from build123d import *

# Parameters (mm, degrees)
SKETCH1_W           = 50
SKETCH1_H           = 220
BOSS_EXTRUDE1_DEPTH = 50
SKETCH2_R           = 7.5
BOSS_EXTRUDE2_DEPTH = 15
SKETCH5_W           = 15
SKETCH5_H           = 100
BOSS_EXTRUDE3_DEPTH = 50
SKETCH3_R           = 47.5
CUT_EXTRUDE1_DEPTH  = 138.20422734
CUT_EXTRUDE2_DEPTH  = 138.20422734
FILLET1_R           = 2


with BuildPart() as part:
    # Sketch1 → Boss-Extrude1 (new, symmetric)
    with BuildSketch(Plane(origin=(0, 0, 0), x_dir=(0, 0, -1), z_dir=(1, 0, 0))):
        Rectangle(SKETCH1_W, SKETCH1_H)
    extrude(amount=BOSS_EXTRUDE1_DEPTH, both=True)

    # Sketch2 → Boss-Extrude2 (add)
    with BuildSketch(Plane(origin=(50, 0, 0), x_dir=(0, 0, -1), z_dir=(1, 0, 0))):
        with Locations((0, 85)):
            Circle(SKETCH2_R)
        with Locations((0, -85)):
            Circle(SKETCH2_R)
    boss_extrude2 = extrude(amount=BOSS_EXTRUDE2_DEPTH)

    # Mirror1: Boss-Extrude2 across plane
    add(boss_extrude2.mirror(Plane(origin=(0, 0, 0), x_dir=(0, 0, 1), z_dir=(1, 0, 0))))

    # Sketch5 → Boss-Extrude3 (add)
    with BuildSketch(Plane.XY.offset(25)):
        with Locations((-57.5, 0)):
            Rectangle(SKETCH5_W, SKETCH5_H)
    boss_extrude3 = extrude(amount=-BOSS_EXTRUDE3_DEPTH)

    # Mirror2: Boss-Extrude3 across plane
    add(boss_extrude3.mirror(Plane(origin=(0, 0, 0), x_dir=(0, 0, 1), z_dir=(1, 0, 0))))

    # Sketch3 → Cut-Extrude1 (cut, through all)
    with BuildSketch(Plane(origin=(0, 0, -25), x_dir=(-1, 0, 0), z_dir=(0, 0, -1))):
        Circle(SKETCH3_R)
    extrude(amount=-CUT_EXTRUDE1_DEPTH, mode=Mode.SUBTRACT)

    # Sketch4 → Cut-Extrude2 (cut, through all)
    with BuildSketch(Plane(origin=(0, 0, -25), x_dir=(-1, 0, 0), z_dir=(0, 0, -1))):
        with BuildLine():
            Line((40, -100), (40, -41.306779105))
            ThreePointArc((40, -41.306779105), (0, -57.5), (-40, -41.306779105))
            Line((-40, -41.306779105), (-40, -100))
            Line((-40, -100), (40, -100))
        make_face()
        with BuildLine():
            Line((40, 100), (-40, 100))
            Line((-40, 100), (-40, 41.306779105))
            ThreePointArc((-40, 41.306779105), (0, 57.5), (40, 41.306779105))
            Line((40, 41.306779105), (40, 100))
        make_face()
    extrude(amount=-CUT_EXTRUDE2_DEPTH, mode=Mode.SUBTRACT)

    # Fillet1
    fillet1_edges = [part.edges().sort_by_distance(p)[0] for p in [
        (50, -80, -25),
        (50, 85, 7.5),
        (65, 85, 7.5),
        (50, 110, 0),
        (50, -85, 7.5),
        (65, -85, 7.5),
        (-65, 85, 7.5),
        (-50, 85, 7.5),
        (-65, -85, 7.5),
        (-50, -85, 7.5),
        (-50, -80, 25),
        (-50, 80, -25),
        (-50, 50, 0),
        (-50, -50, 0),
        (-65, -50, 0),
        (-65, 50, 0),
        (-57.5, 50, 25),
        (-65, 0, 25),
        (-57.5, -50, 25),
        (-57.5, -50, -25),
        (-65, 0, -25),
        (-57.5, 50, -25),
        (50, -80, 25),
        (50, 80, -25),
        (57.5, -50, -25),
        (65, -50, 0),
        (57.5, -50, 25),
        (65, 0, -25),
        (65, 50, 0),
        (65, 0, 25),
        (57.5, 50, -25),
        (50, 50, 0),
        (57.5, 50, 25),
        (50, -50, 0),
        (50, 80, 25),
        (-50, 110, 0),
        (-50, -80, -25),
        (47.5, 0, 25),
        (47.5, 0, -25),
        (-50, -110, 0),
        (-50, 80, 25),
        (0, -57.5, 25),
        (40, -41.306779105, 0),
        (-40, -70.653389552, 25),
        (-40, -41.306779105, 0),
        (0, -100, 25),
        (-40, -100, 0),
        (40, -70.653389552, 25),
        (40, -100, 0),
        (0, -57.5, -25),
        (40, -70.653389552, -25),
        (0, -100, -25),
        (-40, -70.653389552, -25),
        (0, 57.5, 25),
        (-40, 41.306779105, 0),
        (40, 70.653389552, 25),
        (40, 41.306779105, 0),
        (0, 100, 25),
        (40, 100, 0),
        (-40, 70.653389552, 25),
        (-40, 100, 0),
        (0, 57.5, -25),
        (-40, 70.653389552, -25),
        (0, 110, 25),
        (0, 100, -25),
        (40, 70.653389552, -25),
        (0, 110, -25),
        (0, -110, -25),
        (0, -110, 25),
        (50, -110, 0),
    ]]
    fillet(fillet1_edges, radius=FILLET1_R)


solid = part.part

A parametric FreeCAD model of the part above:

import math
import FreeCAD as App
import Part
import Sketcher

V = App.Vector
Q = App.Units.Quantity


def add_polygon(sketch, points):
    """Adds a closed chain of lines whose ends are joined by coincident constraints."""
    first, n = sketch.GeometryCount, len(points)
    for a, b in zip(points, points[1:] + points[:1]):
        sketch.addGeometry(Part.LineSegment(App.Vector(*a, 0), App.Vector(*b, 0)), False)
    for i in range(n):
        sketch.addConstraint(Sketcher.Constraint("Coincident", first + i, 2, first + (i + 1) % n, 1))

doc = App.newDocument("Part")
body = doc.addObject("PartDesign::Body", "Body")

# Sketch on YZ plane
sketch1 = body.newObject("Sketcher::SketchObject", "Sketch")
sketch1.AttachmentSupport = (doc.getObject("YZ_Plane"), [""])
sketch1.MapMode = "FlatFace"
add_polygon(sketch1, [(110, 25), (-110, 25), (-110, -25), (110, -25)])  # lines 0-3
sketch1.addConstraint([
    Sketcher.Constraint("Horizontal", 0),
    Sketcher.Constraint("Vertical", 1),
    Sketcher.Constraint("Horizontal", 2),
    Sketcher.Constraint("Vertical", 3),
    Sketcher.Constraint("Symmetric", 0, 2, 2, 2, -1, 1),
    Sketcher.Constraint("DistanceX", 0, 2, 0, 1, Q("220 mm")),
    Sketcher.Constraint("DistanceY", 1, 2, 1, 1, Q("50 mm")),
])
pad1 = body.newObject("PartDesign::Pad", "Pad")
pad1.Profile = sketch1
pad1.Length = 100
pad1.Midplane = True

# Sketch on YZ plane
sketch2 = body.newObject("Sketcher::SketchObject", "Sketch001")
sketch2.AttachmentSupport = (doc.getObject("YZ_Plane"), [""])
sketch2.MapMode = "FlatFace"
sketch2.AttachmentOffset = App.Placement(V(0, 0, 50), App.Rotation())
sketch2.addGeometry([
    Part.Circle(V(85, 0, 0), V(0, 0, 1), 7.5),
    Part.Circle(V(-85, 0, 0), V(0, 0, 1), 7.5),
], False)
sketch2.addConstraint([
    Sketcher.Constraint("Equal", 0, 1),
    Sketcher.Constraint("Symmetric", 0, 3, 1, 3, -1, 1),
    Sketcher.Constraint("PointOnObject", 0, 3, -1),
    Sketcher.Constraint("Diameter", 0, Q("15 mm")),
    Sketcher.Constraint("DistanceX", -1, 1, 0, 3, Q("85 mm")),
])
pad2 = body.newObject("PartDesign::Pad", "Pad001")
pad2.Profile = sketch2
pad2.Length = 15
doc.recompute()

mirrored = body.newObject("PartDesign::Mirrored", "Mirrored")
mirrored.Originals = [pad2]
mirrored.MirrorPlane = (doc.getObject("YZ_Plane"), [""])
body.Tip = mirrored

# Sketch on XY plane
sketch3 = body.newObject("Sketcher::SketchObject", "Sketch002")
sketch3.AttachmentSupport = (doc.getObject("XY_Plane"), [""])
sketch3.MapMode = "FlatFace"
sketch3.AttachmentOffset = App.Placement(V(0, 0, 25), App.Rotation())
add_polygon(sketch3, [(-65, 50), (-65, -50), (-50, -50), (-50, 50)])  # lines 0-3
sketch3.addConstraint([
    Sketcher.Constraint("Vertical", 0),
    Sketcher.Constraint("Horizontal", 1),
    Sketcher.Constraint("Vertical", 2),
    Sketcher.Constraint("Horizontal", 3),
    Sketcher.Constraint("DistanceX", 1, 1, 1, 2, Q("15 mm")),
    Sketcher.Constraint("DistanceY", 0, 2, 0, 1, Q("100 mm")),
    Sketcher.Constraint("DistanceX", 0, 2, -1, 1, Q("65 mm")),
    Sketcher.Constraint("DistanceY", 0, 2, -1, 1, Q("50 mm")),
])
pad3 = body.newObject("PartDesign::Pad", "Pad002")
pad3.Profile = sketch3
pad3.Length = 50
pad3.Reversed = True
doc.recompute()

mirrored2 = body.newObject("PartDesign::Mirrored", "Mirrored001")
mirrored2.Originals = [pad3]
mirrored2.MirrorPlane = (doc.getObject("YZ_Plane"), [""])
body.Tip = mirrored2

# Sketch on XY plane
sketch4 = body.newObject("Sketcher::SketchObject", "Sketch003")
sketch4.AttachmentSupport = (doc.getObject("XY_Plane"), [""])
sketch4.MapMode = "FlatFace"
sketch4.AttachmentOffset = App.Placement(V(0, 0, -25), App.Rotation())
sketch4.addGeometry(Part.Circle(V(0, 0, 0), V(0, 0, 1), 47.5), False)
sketch4.addConstraint([
    Sketcher.Constraint("Coincident", 0, 3, -1, 1),
    Sketcher.Constraint("Diameter", 0, Q("95 mm")),
])
pocket1 = body.newObject("PartDesign::Pocket", "Pocket")
pocket1.Profile = sketch4
pocket1.Type = "ThroughAll"
pocket1.Reversed = True

# Sketch on XY plane
sketch5 = body.newObject("Sketcher::SketchObject", "Sketch004")
sketch5.AttachmentSupport = (doc.getObject("XY_Plane"), [""])
sketch5.MapMode = "FlatFace"
sketch5.AttachmentOffset = App.Placement(V(0, 0, -25), App.Rotation())
sketch5.addGeometry([
    Part.LineSegment(V(-40, -100, 0), V(-40, -41.306779, 0)),  # 0
    Part.ArcOfCircle(Part.Circle(V(0, 0, 0), V(0, 0, 1), 57.5), math.radians(-134.07921), math.radians(-45.92079)),  # 1
    Part.LineSegment(V(40, -41.306779, 0), V(40, -100, 0)),  # 2
    Part.LineSegment(V(40, -100, 0), V(-40, -100, 0)),  # 3
    Part.LineSegment(V(-40, 100, 0), V(40, 100, 0)),  # 4
    Part.LineSegment(V(40, 100, 0), V(40, 41.306779, 0)),  # 5
    Part.ArcOfCircle(Part.Circle(V(0, 0, 0), V(0, 0, 1), 57.5), math.radians(45.92079), math.radians(134.07921)),  # 6
    Part.LineSegment(V(-40, 41.306779, 0), V(-40, 100, 0)),  # 7
], False)
sketch5.addConstraint([
    Sketcher.Constraint("Coincident", 0, 2, 1, 1),
    Sketcher.Constraint("Coincident", 1, 2, 2, 1),
    Sketcher.Constraint("Coincident", 2, 2, 3, 1),
    Sketcher.Constraint("Coincident", 3, 2, 0, 1),
    Sketcher.Constraint("Coincident", 4, 2, 5, 1),
    Sketcher.Constraint("Coincident", 5, 2, 6, 1),
    Sketcher.Constraint("Coincident", 6, 2, 7, 1),
    Sketcher.Constraint("Coincident", 7, 2, 4, 1),
    Sketcher.Constraint("Vertical", 0),
    Sketcher.Constraint("Vertical", 2),
    Sketcher.Constraint("Horizontal", 3),
    Sketcher.Constraint("Horizontal", 4),
    Sketcher.Constraint("Vertical", 5),
    Sketcher.Constraint("Vertical", 7),
    Sketcher.Constraint("Coincident", 1, 3, -1, 1),
    Sketcher.Constraint("Coincident", 6, 3, -1, 1),
    Sketcher.Constraint("Equal", 1, 6),
    Sketcher.Constraint("Symmetric", 3, 2, 4, 2, -1, 1),
    Sketcher.Constraint("Horizontal", 0, 2, 1, 2),
    Sketcher.Constraint("Horizontal", 5, 2, 6, 2),
    Sketcher.Constraint("Radius", 1, Q("57.5 mm")),
    Sketcher.Constraint("DistanceX", 3, 2, 3, 1, Q("80 mm")),
    Sketcher.Constraint("DistanceY", 2, 2, -1, 1, Q("100 mm")),
])
pocket2 = body.newObject("PartDesign::Pocket", "Pocket001")
pocket2.Profile = sketch5
pocket2.Type = "ThroughAll"
pocket2.Reversed = True
doc.recompute()

fillet = body.newObject("PartDesign::Fillet", "Fillet")
fillet.Base = (pocket2, ["Edge1"])
fillet.UseAllEdges = True
fillet.Radius = 2

doc.recompute()
